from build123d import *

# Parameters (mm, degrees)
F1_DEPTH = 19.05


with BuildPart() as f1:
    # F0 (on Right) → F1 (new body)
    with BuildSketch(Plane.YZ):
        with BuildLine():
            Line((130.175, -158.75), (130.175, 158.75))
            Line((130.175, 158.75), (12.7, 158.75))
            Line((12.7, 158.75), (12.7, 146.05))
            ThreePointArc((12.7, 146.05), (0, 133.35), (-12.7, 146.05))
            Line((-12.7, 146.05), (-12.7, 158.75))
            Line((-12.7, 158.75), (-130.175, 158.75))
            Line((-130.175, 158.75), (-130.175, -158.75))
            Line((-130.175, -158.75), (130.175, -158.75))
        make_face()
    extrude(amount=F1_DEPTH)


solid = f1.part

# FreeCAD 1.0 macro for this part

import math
import FreeCAD as App
import Part
import Sketcher

V = App.Vector
Q = App.Units.Quantity

doc = App.newDocument("Part")
body = doc.addObject("PartDesign::Body", "Body")

sketch1 = body.newObject("Sketcher::SketchObject", "Sketch")
sketch1.AttachmentSupport = (doc.getObject("YZ_Plane"), [""])
sketch1.MapMode = "FlatFace"
sketch1.addGeometry([
    Part.LineSegment(V(130, -159, 0), V(130, 159, 0)),
    Part.LineSegment(V(130, 159, 0), V(13, 159, 0)),
    Part.LineSegment(V(13, 159, 0), V(13, 146, 0)),
    Part.ArcOfCircle(Part.Circle(V(0, 146, 0), V(0, 0, 1), 13), math.radians(180), math.radians(360)),
    Part.LineSegment(V(-13, 146, 0), V(-13, 159, 0)),
    Part.LineSegment(V(-13, 159, 0), V(-130, 159, 0)),
    Part.LineSegment(V(-130, 159, 0), V(-130, -159, 0)),
    Part.LineSegment(V(-130, -159, 0), V(130, -159, 0)),
], False)
sketch1.addConstraint([
    Sketcher.Constraint("Coincident", 0, 2, 1, 1),
    Sketcher.Constraint("Coincident", 1, 2, 2, 1),
    Sketcher.Constraint("Tangent", 2, 2, 3, 2),
    Sketcher.Constraint("Tangent", 3, 1, 4, 1),
    Sketcher.Constraint("Coincident", 4, 2, 5, 1),
    Sketcher.Constraint("Coincident", 5, 2, 6, 1),
    Sketcher.Constraint("Coincident", 6, 2, 7, 1),
    Sketcher.Constraint("Coincident", 7, 2, 0, 1),
    Sketcher.Constraint("Vertical", 0),
    Sketcher.Constraint("Horizontal", 1),
    Sketcher.Constraint("Vertical", 2),
    Sketcher.Constraint("Vertical", 4),
    Sketcher.Constraint("Horizontal", 5),
    Sketcher.Constraint("Vertical", 6),
    Sketcher.Constraint("Horizontal", 7),
    Sketcher.Constraint("Symmetric", 0, 2, 6, 2, -1, 1),
    Sketcher.Constraint("Symmetric", 1, 2, 4, 2, -2),
    Sketcher.Constraint("Radius", 3, Q("0.5 in")),
    Sketcher.Constraint("DistanceY", 0, 1, 0, 2, Q("12.5 in")),
    Sketcher.Constraint("DistanceY", 2, 2, 2, 1, Q("0.5 in")),
    Sketcher.Constraint("DistanceX", 7, 1, 7, 2, Q("10.25 in")),
])
pad1 = body.newObject("PartDesign::Pad", "Pad")
pad1.Profile = sketch1
pad1.Length = Q("0.75 in")

doc.recompute()
